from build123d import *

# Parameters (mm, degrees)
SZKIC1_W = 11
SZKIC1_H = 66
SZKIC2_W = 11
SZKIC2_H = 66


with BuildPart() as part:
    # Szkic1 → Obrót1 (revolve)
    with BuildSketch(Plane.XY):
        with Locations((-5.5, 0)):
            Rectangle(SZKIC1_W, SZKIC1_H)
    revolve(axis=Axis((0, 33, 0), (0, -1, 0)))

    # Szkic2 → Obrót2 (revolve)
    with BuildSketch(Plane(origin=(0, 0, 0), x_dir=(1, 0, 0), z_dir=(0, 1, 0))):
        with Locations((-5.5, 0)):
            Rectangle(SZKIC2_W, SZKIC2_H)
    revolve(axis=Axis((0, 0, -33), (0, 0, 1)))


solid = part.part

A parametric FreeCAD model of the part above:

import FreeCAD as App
import Part
import Sketcher
from FreeCAD import Vector
Q = App.Units.Quantity


def add_polygon(sketch, points):
    """Adds a closed chain of lines whose ends are joined by coincident constraints."""
    first, n = sketch.GeometryCount, len(points)
    for a, b in zip(points, points[1:] + points[:1]):
        sketch.addGeometry(Part.LineSegment(App.Vector(*a, 0), App.Vector(*b, 0)), False)
    for i in range(n):
        sketch.addConstraint(Sketcher.Constraint("Coincident", first + i, 2, first + (i + 1) % n, 1))

doc = App.newDocument("Part")
body = doc.addObject("PartDesign::Body", "Body")

# Sketch on XY plane
sketch1 = body.newObject("Sketcher::SketchObject", "Sketch")
sketch1.AttachmentSupport = (doc.getObject("XY_Plane"), [""])
sketch1.MapMode = "FlatFace"
add_polygon(sketch1, [(-11, 33), (-11, -33), (0, -33), (0, 33)])  # lines 0-3
sketch1.addConstraint(Sketcher.Constraint("Vertical", 0))
sketch1.addConstraint(Sketcher.Constraint("Horizontal", 1))
sketch1.addConstraint(Sketcher.Constraint("Vertical", 2))
sketch1.addConstraint(Sketcher.Constraint("Horizontal", 3))
sketch1.addConstraint(Sketcher.Constraint("Symmetric", 1, 2, 2, 2, -1, 1))
sketch1.addConstraint(Sketcher.Constraint("DistanceX", 1, 1, 1, 2, Q("11 mm")))
sketch1.addConstraint(Sketcher.Constraint("DistanceY", 0, 2, 0, 1, Q("66 mm")))
revolution = body.newObject("PartDesign::Revolution", "Revolution")
revolution.Profile = sketch1
revolution.ReferenceAxis = (sketch1, ["V_Axis"])
revolution.Angle = 360

# Sketch on XZ plane
sketch2 = body.newObject("Sketcher::SketchObject", "Sketch001")
sketch2.AttachmentSupport = (doc.getObject("XZ_Plane"), [""])
sketch2.MapMode = "FlatFace"
add_polygon(sketch2, [(-11, -33), (-11, 33), (0, 33), (0, -33)])  # lines 0-3
sketch2.addConstraint(Sketcher.Constraint("Vertical", 0))
sketch2.addConstraint(Sketcher.Constraint("Horizontal", 1))
sketch2.addConstraint(Sketcher.Constraint("Vertical", 2))
sketch2.addConstraint(Sketcher.Constraint("Horizontal", 3))
sketch2.addConstraint(Sketcher.Constraint("Symmetric", 1, 2, 2, 2, -1, 1))
sketch2.addConstraint(Sketcher.Constraint("DistanceX", 1, 1, 1, 2, Q("11 mm")))
sketch2.addConstraint(Sketcher.Constraint("DistanceY", 0, 1, 0, 2, Q("66 mm")))
revolution2 = body.newObject("PartDesign::Revolution", "Revolution001")
revolution2.Profile = sketch2
revolution2.ReferenceAxis = (sketch2, ["V_Axis"])
revolution2.Angle = 360

doc.recompute()
